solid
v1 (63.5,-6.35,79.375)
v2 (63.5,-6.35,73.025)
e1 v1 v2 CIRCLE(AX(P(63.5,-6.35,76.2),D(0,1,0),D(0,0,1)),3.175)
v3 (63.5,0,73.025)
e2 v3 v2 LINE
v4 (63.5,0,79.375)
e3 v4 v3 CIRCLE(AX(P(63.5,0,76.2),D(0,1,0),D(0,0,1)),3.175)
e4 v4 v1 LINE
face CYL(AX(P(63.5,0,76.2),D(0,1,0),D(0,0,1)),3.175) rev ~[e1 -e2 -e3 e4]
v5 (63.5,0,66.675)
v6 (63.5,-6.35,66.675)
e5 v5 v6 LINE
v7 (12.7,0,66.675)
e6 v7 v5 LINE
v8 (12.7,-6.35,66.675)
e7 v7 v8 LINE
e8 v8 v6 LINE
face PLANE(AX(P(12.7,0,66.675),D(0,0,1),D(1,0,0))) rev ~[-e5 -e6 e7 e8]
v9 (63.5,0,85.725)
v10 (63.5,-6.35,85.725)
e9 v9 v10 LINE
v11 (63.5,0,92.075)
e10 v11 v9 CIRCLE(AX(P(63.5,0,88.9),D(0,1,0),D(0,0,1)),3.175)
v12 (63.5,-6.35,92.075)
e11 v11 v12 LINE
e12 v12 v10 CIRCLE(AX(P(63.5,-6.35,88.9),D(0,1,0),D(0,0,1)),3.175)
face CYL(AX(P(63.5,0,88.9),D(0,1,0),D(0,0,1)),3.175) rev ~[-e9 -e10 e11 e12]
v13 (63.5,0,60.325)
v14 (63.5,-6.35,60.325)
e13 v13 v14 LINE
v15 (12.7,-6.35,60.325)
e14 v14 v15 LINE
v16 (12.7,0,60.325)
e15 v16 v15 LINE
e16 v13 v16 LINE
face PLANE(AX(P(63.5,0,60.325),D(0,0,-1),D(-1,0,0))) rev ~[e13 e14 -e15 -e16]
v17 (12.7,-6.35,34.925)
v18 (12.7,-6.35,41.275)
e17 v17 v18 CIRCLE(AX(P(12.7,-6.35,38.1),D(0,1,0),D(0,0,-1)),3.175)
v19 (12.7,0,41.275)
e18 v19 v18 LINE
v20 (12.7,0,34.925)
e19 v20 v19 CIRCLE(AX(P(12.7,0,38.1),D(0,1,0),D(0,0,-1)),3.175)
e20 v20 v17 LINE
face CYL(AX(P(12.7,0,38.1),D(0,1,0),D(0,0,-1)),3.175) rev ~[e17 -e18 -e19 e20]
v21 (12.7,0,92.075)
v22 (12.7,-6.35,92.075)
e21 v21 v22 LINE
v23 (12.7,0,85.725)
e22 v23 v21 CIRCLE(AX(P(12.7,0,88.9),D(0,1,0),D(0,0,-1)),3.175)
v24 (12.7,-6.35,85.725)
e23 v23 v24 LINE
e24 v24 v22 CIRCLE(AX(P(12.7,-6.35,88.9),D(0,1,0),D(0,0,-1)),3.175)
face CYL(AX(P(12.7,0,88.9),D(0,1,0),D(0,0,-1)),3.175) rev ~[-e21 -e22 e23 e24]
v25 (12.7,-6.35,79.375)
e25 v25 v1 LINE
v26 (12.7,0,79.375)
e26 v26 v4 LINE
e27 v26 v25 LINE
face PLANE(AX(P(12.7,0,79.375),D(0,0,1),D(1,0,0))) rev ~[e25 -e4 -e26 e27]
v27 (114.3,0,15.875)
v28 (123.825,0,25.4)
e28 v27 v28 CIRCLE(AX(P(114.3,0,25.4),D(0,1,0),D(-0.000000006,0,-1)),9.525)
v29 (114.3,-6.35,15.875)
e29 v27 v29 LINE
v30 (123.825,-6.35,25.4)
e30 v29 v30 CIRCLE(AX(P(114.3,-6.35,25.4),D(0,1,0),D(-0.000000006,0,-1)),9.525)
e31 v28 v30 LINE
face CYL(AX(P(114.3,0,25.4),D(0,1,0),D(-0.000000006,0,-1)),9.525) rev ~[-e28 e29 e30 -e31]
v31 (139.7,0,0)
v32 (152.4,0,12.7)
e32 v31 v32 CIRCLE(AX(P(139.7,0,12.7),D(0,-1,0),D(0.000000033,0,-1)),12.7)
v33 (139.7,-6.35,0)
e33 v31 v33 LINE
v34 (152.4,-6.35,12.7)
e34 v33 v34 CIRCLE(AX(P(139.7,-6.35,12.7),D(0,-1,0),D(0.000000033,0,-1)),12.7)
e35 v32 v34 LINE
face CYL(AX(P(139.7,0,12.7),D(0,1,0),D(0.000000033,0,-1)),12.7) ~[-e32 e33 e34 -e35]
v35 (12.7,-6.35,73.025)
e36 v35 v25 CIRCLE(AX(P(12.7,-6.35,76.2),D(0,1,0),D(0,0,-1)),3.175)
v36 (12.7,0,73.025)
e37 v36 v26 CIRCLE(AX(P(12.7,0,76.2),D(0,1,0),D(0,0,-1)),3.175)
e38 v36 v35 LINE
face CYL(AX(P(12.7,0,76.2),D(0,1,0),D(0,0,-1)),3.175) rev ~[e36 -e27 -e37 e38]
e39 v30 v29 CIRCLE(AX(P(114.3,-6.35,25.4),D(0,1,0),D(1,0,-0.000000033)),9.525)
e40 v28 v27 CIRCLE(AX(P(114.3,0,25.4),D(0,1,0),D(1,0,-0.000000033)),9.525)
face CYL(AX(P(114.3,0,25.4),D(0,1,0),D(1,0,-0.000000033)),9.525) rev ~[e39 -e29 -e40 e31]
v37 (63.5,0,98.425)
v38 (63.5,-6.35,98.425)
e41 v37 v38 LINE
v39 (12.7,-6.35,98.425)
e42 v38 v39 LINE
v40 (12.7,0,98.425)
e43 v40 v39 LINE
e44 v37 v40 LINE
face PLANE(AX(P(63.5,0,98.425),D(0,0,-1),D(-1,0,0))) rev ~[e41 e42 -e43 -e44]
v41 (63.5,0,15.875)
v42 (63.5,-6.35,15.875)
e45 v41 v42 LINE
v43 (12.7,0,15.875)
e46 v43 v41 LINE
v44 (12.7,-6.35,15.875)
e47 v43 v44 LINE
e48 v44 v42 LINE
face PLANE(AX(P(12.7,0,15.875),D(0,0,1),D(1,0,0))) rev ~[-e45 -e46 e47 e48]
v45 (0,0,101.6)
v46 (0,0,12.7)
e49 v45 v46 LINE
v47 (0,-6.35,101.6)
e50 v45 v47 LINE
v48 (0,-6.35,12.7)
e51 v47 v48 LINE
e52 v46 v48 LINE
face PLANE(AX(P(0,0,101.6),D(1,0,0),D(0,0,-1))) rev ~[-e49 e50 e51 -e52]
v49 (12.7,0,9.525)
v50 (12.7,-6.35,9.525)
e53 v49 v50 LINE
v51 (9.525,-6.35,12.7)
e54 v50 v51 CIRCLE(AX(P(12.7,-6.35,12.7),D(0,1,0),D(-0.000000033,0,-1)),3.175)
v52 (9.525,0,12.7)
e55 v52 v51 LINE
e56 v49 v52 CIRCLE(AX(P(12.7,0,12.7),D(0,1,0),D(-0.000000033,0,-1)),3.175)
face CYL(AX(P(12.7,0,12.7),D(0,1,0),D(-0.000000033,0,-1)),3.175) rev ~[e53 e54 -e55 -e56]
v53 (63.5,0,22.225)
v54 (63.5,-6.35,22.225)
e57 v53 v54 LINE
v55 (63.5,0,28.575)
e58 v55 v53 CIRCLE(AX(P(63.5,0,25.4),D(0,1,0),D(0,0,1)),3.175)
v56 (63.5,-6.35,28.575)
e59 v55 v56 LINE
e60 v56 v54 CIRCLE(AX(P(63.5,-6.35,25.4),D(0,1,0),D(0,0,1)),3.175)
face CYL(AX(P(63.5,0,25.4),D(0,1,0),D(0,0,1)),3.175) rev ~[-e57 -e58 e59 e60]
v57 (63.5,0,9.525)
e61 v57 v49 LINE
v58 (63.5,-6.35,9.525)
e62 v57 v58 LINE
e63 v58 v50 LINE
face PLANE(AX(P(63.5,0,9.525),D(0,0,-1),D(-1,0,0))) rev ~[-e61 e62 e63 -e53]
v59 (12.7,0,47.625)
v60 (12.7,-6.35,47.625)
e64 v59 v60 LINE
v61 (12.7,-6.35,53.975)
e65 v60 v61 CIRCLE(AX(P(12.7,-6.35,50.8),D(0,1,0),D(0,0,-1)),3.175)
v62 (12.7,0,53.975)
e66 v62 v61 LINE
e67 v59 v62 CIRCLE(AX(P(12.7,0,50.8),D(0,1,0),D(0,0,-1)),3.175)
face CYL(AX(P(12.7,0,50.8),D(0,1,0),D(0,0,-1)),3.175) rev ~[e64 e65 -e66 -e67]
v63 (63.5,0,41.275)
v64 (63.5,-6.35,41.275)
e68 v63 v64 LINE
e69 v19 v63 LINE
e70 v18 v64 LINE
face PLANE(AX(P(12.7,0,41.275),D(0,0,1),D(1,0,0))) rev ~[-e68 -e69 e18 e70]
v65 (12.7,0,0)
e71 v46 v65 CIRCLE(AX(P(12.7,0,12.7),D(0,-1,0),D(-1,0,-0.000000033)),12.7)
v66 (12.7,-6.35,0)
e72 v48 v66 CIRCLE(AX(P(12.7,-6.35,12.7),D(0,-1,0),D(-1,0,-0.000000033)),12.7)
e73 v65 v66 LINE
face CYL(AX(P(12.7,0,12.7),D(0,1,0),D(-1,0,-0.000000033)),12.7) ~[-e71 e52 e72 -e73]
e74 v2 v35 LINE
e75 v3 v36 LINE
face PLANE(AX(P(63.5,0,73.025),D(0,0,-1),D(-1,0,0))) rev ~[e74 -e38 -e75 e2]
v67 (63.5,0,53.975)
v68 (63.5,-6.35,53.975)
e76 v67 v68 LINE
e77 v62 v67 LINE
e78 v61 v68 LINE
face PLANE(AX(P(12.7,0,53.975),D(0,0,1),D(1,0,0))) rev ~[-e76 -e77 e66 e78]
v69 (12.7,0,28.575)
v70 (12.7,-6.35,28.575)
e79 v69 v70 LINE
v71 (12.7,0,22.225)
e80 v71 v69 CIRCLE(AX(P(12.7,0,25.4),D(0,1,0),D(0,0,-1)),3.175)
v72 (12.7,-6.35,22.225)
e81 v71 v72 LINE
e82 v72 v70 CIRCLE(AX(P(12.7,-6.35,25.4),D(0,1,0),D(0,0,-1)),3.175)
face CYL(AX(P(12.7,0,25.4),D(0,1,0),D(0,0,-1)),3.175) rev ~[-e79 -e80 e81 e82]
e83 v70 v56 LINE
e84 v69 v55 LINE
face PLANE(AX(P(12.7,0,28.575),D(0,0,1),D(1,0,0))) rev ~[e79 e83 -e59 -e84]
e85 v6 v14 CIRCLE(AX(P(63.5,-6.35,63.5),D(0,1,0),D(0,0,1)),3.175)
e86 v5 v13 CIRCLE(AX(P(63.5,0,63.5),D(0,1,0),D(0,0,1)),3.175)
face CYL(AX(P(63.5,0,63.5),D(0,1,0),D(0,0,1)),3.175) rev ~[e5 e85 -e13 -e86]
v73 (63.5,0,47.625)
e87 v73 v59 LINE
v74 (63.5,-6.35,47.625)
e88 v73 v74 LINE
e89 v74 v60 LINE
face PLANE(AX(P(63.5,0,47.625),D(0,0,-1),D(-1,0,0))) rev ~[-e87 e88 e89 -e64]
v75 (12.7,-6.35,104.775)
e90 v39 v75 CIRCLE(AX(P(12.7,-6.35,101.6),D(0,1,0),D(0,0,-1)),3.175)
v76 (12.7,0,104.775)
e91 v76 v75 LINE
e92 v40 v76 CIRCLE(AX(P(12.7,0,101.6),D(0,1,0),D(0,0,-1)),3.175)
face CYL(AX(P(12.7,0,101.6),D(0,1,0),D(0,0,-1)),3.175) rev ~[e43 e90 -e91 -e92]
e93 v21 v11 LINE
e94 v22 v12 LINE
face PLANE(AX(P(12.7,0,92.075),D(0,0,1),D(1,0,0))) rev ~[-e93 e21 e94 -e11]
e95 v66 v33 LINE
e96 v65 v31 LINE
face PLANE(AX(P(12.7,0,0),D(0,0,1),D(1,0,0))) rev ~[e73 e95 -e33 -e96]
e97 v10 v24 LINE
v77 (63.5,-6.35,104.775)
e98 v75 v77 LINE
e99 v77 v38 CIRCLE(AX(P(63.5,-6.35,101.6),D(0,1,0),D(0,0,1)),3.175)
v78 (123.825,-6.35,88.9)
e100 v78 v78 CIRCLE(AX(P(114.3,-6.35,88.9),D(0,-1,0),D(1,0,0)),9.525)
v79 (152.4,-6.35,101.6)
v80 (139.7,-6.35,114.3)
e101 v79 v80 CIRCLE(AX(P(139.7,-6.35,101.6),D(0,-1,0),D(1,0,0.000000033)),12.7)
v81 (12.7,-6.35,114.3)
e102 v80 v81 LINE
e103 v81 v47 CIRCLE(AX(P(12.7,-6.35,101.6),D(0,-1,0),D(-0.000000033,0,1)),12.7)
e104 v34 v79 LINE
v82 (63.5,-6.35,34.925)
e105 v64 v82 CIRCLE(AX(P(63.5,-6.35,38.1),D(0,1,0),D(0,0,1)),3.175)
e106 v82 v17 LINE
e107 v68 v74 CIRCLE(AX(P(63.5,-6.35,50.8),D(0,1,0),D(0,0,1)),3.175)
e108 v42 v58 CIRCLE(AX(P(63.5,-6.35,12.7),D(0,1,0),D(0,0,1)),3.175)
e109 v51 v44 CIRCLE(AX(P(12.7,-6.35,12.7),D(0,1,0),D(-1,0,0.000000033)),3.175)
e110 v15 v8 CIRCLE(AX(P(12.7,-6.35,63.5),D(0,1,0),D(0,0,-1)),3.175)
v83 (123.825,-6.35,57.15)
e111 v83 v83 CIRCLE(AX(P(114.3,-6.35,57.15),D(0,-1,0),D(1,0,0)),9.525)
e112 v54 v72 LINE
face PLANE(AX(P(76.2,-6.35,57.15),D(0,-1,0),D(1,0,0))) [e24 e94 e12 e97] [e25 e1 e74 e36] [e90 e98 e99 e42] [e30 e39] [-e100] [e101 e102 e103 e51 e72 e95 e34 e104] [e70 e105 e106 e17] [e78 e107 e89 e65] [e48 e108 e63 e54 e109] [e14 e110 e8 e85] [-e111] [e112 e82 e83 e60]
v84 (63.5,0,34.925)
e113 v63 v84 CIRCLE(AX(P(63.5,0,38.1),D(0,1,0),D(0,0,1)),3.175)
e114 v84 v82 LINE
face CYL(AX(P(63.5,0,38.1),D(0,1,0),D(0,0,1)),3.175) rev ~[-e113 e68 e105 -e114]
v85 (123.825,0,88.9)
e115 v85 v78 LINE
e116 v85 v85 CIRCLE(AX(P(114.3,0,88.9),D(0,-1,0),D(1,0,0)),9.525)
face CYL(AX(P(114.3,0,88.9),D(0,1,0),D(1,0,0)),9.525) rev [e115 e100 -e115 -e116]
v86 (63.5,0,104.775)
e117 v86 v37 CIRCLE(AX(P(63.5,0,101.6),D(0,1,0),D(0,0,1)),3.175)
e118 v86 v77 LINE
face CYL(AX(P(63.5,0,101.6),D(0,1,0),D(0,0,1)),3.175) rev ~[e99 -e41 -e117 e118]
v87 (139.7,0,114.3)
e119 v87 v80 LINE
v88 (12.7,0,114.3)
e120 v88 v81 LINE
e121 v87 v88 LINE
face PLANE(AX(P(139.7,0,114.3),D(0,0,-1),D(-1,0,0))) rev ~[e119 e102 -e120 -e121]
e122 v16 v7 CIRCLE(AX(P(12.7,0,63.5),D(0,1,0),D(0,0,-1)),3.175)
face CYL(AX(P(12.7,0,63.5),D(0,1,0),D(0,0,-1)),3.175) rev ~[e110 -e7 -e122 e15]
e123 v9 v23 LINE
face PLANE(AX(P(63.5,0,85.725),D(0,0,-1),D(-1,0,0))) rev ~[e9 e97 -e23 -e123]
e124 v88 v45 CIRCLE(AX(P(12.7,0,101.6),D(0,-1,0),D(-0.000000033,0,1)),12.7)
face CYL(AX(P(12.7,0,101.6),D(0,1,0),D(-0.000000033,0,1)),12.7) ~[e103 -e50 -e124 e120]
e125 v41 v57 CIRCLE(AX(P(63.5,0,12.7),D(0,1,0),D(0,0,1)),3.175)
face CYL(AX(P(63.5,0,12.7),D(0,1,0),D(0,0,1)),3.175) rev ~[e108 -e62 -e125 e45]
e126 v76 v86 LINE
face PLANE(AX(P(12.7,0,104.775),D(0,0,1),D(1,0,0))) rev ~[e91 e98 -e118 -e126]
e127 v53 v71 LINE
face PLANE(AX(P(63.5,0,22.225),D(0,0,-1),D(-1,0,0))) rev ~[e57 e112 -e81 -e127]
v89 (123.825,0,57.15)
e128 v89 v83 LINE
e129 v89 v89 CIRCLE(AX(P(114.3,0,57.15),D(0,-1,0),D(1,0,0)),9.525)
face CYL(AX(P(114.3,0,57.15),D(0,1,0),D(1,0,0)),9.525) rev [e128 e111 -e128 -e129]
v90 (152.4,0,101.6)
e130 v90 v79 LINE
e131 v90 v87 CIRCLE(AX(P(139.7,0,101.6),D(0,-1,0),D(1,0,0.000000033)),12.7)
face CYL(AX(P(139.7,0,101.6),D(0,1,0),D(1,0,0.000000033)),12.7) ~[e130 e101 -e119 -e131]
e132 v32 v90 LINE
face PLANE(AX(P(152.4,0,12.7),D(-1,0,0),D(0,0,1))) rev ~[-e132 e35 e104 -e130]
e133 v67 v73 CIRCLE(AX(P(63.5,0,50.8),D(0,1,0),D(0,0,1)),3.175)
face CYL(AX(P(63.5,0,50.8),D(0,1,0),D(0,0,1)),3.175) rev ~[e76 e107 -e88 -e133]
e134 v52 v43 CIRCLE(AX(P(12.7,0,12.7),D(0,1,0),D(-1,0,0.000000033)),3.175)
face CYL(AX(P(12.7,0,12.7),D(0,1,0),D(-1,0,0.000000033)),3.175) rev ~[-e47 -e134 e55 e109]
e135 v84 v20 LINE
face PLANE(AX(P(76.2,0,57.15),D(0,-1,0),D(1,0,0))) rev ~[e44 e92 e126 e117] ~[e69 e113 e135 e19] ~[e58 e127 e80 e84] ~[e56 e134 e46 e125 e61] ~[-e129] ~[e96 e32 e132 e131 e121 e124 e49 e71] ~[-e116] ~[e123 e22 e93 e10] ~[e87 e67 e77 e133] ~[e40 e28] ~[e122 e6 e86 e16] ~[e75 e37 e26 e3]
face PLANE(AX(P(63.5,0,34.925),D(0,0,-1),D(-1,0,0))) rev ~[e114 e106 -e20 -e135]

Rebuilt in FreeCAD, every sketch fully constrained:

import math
import FreeCAD as App
import Part
import Sketcher

V = App.Vector
Q = App.Units.Quantity

doc = App.newDocument("Part")
body = doc.addObject("PartDesign::Body", "Body")

# Sketch on XZ plane
sketch1 = body.newObject("Sketcher::SketchObject", "Sketch")
sketch1.AttachmentSupport = (doc.getObject("XZ_Plane"), [""])
sketch1.MapMode = "FlatFace"
sketch1.addGeometry([
    Part.ArcOfCircle(Part.Circle(V(12.7, 12.7, 0), V(0, 0, 1), 12.7), math.radians(-180), math.radians(-90)),  # 0
    Part.LineSegment(V(12.7, 0, 0), V(139.7, 0, 0)),  # 1
    Part.ArcOfCircle(Part.Circle(V(139.7, 12.7, 0), V(0, 0, 1), 12.7), math.radians(-90), math.radians(0)),  # 2
    Part.LineSegment(V(152.4, 12.7, 0), V(152.4, 101.6, 0)),  # 3
    Part.ArcOfCircle(Part.Circle(V(139.7, 101.6, 0), V(0, 0, 1), 12.7), math.radians(0), math.radians(90)),  # 4
    Part.LineSegment(V(139.7, 114.3, 0), V(12.7, 114.3, 0)),  # 5
    Part.ArcOfCircle(Part.Circle(V(12.7, 101.6, 0), V(0, 0, 1), 12.7), math.radians(90), math.radians(180)),  # 6
    Part.LineSegment(V(0, 101.6, 0), V(0, 12.7, 0)),  # 7
    Part.LineSegment(V(63.5, 9.5, 0), V(12.7, 9.5, 0)),  # 8
    Part.ArcOfCircle(Part.Circle(V(12.7, 12.7, 0), V(0, 0, 1), 3.2), math.radians(-180), math.radians(-90)),  # 9
    Part.ArcOfCircle(Part.Circle(V(12.7, 12.7, 0), V(0, 0, 1), 3.2), math.radians(90), math.radians(180)),  # 10
    Part.LineSegment(V(12.7, 15.9, 0), V(63.5, 15.9, 0)),  # 11
    Part.ArcOfCircle(Part.Circle(V(63.5, 12.7, 0), V(0, 0, 1), 3.2), math.radians(-90), math.radians(90)),  # 12
    Part.LineSegment(V(63.5, 22.2, 0), V(12.7, 22.2, 0)),  # 13
    Part.ArcOfCircle(Part.Circle(V(12.7, 25.4, 0), V(0, 0, 1), 3.2), math.radians(90), math.radians(270)),  # 14
    Part.LineSegment(V(12.7, 28.6, 0), V(63.5, 28.6, 0)),  # 15
    Part.ArcOfCircle(Part.Circle(V(63.5, 25.4, 0), V(0, 0, 1), 3.2), math.radians(-90), math.radians(90)),  # 16
    Part.LineSegment(V(63.5, 34.9, 0), V(12.7, 34.9, 0)),  # 17
    Part.ArcOfCircle(Part.Circle(V(12.7, 38.1, 0), V(0, 0, 1), 3.2), math.radians(90), math.radians(270)),  # 18
    Part.LineSegment(V(12.7, 41.3, 0), V(63.5, 41.3, 0)),  # 19
    Part.ArcOfCircle(Part.Circle(V(63.5, 38.1, 0), V(0, 0, 1), 3.2), math.radians(-90), math.radians(90)),  # 20
    Part.LineSegment(V(63.5, 47.6, 0), V(12.7, 47.6, 0)),  # 21
    Part.ArcOfCircle(Part.Circle(V(12.7, 50.8, 0), V(0, 0, 1), 3.2), math.radians(90), math.radians(270)),  # 22
    Part.LineSegment(V(12.7, 54, 0), V(63.5, 54, 0)),  # 23
    Part.ArcOfCircle(Part.Circle(V(63.5, 50.8, 0), V(0, 0, 1), 3.2), math.radians(-90), math.radians(90)),  # 24
    Part.ArcOfCircle(Part.Circle(V(114.3, 25.4, 0), V(0, 0, 1), 9.5), math.radians(-90), math.radians(0)),  # 25
    Part.ArcOfCircle(Part.Circle(V(114.3, 25.4, 0), V(0, 0, 1), 9.5), math.radians(0), math.radians(270)),  # 26
    Part.LineSegment(V(63.5, 60.3, 0), V(12.7, 60.3, 0)),  # 27
    Part.ArcOfCircle(Part.Circle(V(12.7, 63.5, 0), V(0, 0, 1), 3.2), math.radians(90), math.radians(270)),  # 28
    Part.LineSegment(V(12.7, 66.7, 0), V(63.5, 66.7, 0)),  # 29
    Part.ArcOfCircle(Part.Circle(V(63.5, 63.5, 0), V(0, 0, 1), 3.2), math.radians(-90), math.radians(90)),  # 30
    Part.LineSegment(V(63.5, 73, 0), V(12.7, 73, 0)),  # 31
    Part.ArcOfCircle(Part.Circle(V(12.7, 76.2, 0), V(0, 0, 1), 3.2), math.radians(90), math.radians(270)),  # 32
    Part.LineSegment(V(12.7, 79.4, 0), V(63.5, 79.4, 0)),  # 33
    Part.ArcOfCircle(Part.Circle(V(63.5, 76.2, 0), V(0, 0, 1), 3.2), math.radians(-90), math.radians(90)),  # 34
    Part.LineSegment(V(63.5, 85.7, 0), V(12.7, 85.7, 0)),  # 35
    Part.ArcOfCircle(Part.Circle(V(12.7, 88.9, 0), V(0, 0, 1), 3.2), math.radians(90), math.radians(270)),  # 36
    Part.LineSegment(V(12.7, 92.1, 0), V(63.5, 92.1, 0)),  # 37
    Part.ArcOfCircle(Part.Circle(V(63.5, 88.9, 0), V(0, 0, 1), 3.2), math.radians(-90), math.radians(90)),  # 38
    Part.LineSegment(V(63.5, 98.4, 0), V(12.7, 98.4, 0)),  # 39
    Part.ArcOfCircle(Part.Circle(V(12.7, 101.6, 0), V(0, 0, 1), 3.2), math.radians(90), math.radians(270)),  # 40
    Part.LineSegment(V(12.7, 104.8, 0), V(63.5, 104.8, 0)),  # 41
    Part.ArcOfCircle(Part.Circle(V(63.5, 101.6, 0), V(0, 0, 1), 3.2), math.radians(-90), math.radians(90)),  # 42
    Part.Circle(V(114.3, 57.1, 0), V(0, 0, 1), 9.5),  # 43
    Part.Circle(V(114.3, 88.9, 0), V(0, 0, 1), 9.5),  # 44
], False)
sketch1.addConstraint([
    Sketcher.Constraint("Tangent", 0, 2, 1, 1),
    Sketcher.Constraint("Tangent", 1, 2, 2, 1),
    Sketcher.Constraint("Tangent", 2, 2, 3, 1),
    Sketcher.Constraint("Tangent", 3, 2, 4, 1),
    Sketcher.Constraint("Tangent", 4, 2, 5, 1),
    Sketcher.Constraint("Tangent", 5, 2, 6, 1),
    Sketcher.Constraint("Tangent", 6, 2, 7, 1),
    Sketcher.Constraint("Tangent", 7, 2, 0, 1),
    Sketcher.Constraint("Tangent", 8, 2, 9, 2),
    Sketcher.Constraint("Tangent", 9, 1, 10, 2),
    Sketcher.Constraint("Tangent", 10, 1, 11, 1),
    Sketcher.Constraint("Tangent", 11, 2, 12, 2),
    Sketcher.Constraint("Tangent", 12, 1, 8, 1),
    Sketcher.Constraint("Tangent", 13, 2, 14, 2),
    Sketcher.Constraint("Tangent", 14, 1, 15, 1),
    Sketcher.Constraint("Tangent", 15, 2, 16, 2),
    Sketcher.Constraint("Tangent", 16, 1, 13, 1),
    Sketcher.Constraint("Tangent", 17, 2, 18, 2),
    Sketcher.Constraint("Tangent", 18, 1, 19, 1),
    Sketcher.Constraint("Tangent", 19, 2, 20, 2),
    Sketcher.Constraint("Tangent", 20, 1, 17, 1),
    Sketcher.Constraint("Tangent", 21, 2, 22, 2),
    Sketcher.Constraint("Tangent", 22, 1, 23, 1),
    Sketcher.Constraint("Tangent", 23, 2, 24, 2),
    Sketcher.Constraint("Tangent", 24, 1, 21, 1),
    Sketcher.Constraint("Tangent", 25, 1, 26, 2),
    Sketcher.Constraint("Coincident", 26, 1, 25, 2),
    Sketcher.Constraint("Tangent", 27, 2, 28, 2),
    Sketcher.Constraint("Tangent", 28, 1, 29, 1),
    Sketcher.Constraint("Tangent", 29, 2, 30, 2),
    Sketcher.Constraint("Tangent", 30, 1, 27, 1),
    Sketcher.Constraint("Tangent", 31, 2, 32, 2),
    Sketcher.Constraint("Tangent", 32, 1, 33, 1),
    Sketcher.Constraint("Tangent", 33, 2, 34, 2),
    Sketcher.Constraint("Tangent", 34, 1, 31, 1),
    Sketcher.Constraint("Tangent", 35, 2, 36, 2),
    Sketcher.Constraint("Tangent", 36, 1, 37, 1),
    Sketcher.Constraint("Tangent", 37, 2, 38, 2),
    Sketcher.Constraint("Tangent", 38, 1, 35, 1),
    Sketcher.Constraint("Tangent", 39, 2, 40, 2),
    Sketcher.Constraint("Tangent", 40, 1, 41, 1),
    Sketcher.Constraint("Tangent", 41, 2, 42, 2),
    Sketcher.Constraint("Tangent", 42, 1, 39, 1),
    Sketcher.Constraint("Horizontal", 1),
    Sketcher.Constraint("Vertical", 3),
    Sketcher.Constraint("Horizontal", 5),
    Sketcher.Constraint("Vertical", 7),
    Sketcher.Constraint("Horizontal", 8),
    Sketcher.Constraint("Horizontal", 11),
    Sketcher.Constraint("Horizontal", 13),
    Sketcher.Constraint("Horizontal", 15),
    Sketcher.Constraint("Horizontal", 17),
    Sketcher.Constraint("Horizontal", 19),
    Sketcher.Constraint("Horizontal", 21),
    Sketcher.Constraint("Horizontal", 23),
    Sketcher.Constraint("Horizontal", 27),
    Sketcher.Constraint("Horizontal", 29),
    Sketcher.Constraint("Horizontal", 31),
    Sketcher.Constraint("Horizontal", 33),
    Sketcher.Constraint("Horizontal", 35),
    Sketcher.Constraint("Horizontal", 37),
    Sketcher.Constraint("Horizontal", 39),
    Sketcher.Constraint("Horizontal", 41),
    Sketcher.Constraint("Coincident", 9, 3, 0, 3),
    Sketcher.Constraint("Coincident", 40, 3, 6, 3),
    Sketcher.Constraint("Equal", 0, 2),
    Sketcher.Constraint("Equal", 2, 4),
    Sketcher.Constraint("Equal", 4, 6),
    Sketcher.Constraint("Equal", 9, 10),
    Sketcher.Constraint("Equal", 12, 14),
    Sketcher.Constraint("Equal", 16, 18),
    Sketcher.Constraint("Equal", 20, 22),
    Sketcher.Constraint("Equal", 24, 28),
    Sketcher.Constraint("Equal", 30, 32),
    Sketcher.Constraint("Equal", 34, 36),
    Sketcher.Constraint("Equal", 38, 40),
    Sketcher.Constraint("Equal", 26, 43),
    Sketcher.Constraint("Equal", 43, 44),
    Sketcher.Constraint("PointOnObject", 0, 2, -1),
    Sketcher.Constraint("PointOnObject", 6, 2, -2),
    Sketcher.Constraint("Horizontal", 16, 3, 25, 3),
    Sketcher.Constraint("Horizontal", 38, 3, 44, 3),
    Sketcher.Constraint("Horizontal", 7, 2, 9, 1),
    Sketcher.Constraint("Horizontal", 11, 2, 25, 1),
    Sketcher.Constraint("Horizontal", 25, 3, 26, 1),
    Sketcher.Constraint("Vertical", 10, 3, 14, 3),
    Sketcher.Constraint("Vertical", 12, 3, 16, 3),
    Sketcher.Constraint("Vertical", 14, 3, 18, 3),
    Sketcher.Constraint("Vertical", 16, 3, 20, 3),
    Sketcher.Constraint("Vertical", 18, 3, 22, 3),
    Sketcher.Constraint("Vertical", 20, 3, 24, 3),
    Sketcher.Constraint("Vertical", 22, 3, 28, 3),
    Sketcher.Constraint("Vertical", 24, 3, 30, 3),
    Sketcher.Constraint("Vertical", 28, 3, 32, 3),
    Sketcher.Constraint("Vertical", 30, 3, 34, 3),
    Sketcher.Constraint("Vertical", 32, 3, 36, 3),
    Sketcher.Constraint("Vertical", 34, 3, 38, 3),
    Sketcher.Constraint("Vertical", 38, 3, 42, 3),
    Sketcher.Constraint("Vertical", 26, 3, 43, 3),
    Sketcher.Constraint("Vertical", 43, 3, 44, 3),
    Sketcher.Constraint("Vertical", 44, 3, 25, 1),
    Sketcher.Constraint("Radius", 0, Q("0.5 in")),
    Sketcher.Constraint("Diameter", 43, Q("0.75 in")),
    Sketcher.Constraint("DistanceX", 1, 1, 1, 2, Q("5 in")),
    Sketcher.Constraint("DistanceX", 8, 2, 8, 1, Q("2 in")),
    Sketcher.Constraint("DistanceY", 3, 1, 3, 2, Q("3.5 in")),
    Sketcher.Constraint("DistanceY", -1, 1, 14, 3, Q("1 in")),
    Sketcher.Constraint("DistanceY", -1, 1, 22, 3, Q("2 in")),
    Sketcher.Constraint("DistanceY", -1, 1, 32, 3, Q("3 in")),
    Sketcher.Constraint("DistanceY", -1, 1, 18, 3, Q("1.5 in")),
    Sketcher.Constraint("DistanceX", -1, 1, 25, 3, Q("4.5 in")),
    Sketcher.Constraint("DistanceY", -1, 1, 28, 3, Q("2.5 in")),
    Sketcher.Constraint("DistanceY", -1, 1, 36, 3, Q("3.5 in")),
    Sketcher.Constraint("DistanceY", -1, 1, 43, 3, Q("2.25 in")),
])
pad1 = body.newObject("PartDesign::Pad", "Pad")
pad1.Profile = sketch1
pad1.Length = Q("0.25 in")

doc.recompute()
